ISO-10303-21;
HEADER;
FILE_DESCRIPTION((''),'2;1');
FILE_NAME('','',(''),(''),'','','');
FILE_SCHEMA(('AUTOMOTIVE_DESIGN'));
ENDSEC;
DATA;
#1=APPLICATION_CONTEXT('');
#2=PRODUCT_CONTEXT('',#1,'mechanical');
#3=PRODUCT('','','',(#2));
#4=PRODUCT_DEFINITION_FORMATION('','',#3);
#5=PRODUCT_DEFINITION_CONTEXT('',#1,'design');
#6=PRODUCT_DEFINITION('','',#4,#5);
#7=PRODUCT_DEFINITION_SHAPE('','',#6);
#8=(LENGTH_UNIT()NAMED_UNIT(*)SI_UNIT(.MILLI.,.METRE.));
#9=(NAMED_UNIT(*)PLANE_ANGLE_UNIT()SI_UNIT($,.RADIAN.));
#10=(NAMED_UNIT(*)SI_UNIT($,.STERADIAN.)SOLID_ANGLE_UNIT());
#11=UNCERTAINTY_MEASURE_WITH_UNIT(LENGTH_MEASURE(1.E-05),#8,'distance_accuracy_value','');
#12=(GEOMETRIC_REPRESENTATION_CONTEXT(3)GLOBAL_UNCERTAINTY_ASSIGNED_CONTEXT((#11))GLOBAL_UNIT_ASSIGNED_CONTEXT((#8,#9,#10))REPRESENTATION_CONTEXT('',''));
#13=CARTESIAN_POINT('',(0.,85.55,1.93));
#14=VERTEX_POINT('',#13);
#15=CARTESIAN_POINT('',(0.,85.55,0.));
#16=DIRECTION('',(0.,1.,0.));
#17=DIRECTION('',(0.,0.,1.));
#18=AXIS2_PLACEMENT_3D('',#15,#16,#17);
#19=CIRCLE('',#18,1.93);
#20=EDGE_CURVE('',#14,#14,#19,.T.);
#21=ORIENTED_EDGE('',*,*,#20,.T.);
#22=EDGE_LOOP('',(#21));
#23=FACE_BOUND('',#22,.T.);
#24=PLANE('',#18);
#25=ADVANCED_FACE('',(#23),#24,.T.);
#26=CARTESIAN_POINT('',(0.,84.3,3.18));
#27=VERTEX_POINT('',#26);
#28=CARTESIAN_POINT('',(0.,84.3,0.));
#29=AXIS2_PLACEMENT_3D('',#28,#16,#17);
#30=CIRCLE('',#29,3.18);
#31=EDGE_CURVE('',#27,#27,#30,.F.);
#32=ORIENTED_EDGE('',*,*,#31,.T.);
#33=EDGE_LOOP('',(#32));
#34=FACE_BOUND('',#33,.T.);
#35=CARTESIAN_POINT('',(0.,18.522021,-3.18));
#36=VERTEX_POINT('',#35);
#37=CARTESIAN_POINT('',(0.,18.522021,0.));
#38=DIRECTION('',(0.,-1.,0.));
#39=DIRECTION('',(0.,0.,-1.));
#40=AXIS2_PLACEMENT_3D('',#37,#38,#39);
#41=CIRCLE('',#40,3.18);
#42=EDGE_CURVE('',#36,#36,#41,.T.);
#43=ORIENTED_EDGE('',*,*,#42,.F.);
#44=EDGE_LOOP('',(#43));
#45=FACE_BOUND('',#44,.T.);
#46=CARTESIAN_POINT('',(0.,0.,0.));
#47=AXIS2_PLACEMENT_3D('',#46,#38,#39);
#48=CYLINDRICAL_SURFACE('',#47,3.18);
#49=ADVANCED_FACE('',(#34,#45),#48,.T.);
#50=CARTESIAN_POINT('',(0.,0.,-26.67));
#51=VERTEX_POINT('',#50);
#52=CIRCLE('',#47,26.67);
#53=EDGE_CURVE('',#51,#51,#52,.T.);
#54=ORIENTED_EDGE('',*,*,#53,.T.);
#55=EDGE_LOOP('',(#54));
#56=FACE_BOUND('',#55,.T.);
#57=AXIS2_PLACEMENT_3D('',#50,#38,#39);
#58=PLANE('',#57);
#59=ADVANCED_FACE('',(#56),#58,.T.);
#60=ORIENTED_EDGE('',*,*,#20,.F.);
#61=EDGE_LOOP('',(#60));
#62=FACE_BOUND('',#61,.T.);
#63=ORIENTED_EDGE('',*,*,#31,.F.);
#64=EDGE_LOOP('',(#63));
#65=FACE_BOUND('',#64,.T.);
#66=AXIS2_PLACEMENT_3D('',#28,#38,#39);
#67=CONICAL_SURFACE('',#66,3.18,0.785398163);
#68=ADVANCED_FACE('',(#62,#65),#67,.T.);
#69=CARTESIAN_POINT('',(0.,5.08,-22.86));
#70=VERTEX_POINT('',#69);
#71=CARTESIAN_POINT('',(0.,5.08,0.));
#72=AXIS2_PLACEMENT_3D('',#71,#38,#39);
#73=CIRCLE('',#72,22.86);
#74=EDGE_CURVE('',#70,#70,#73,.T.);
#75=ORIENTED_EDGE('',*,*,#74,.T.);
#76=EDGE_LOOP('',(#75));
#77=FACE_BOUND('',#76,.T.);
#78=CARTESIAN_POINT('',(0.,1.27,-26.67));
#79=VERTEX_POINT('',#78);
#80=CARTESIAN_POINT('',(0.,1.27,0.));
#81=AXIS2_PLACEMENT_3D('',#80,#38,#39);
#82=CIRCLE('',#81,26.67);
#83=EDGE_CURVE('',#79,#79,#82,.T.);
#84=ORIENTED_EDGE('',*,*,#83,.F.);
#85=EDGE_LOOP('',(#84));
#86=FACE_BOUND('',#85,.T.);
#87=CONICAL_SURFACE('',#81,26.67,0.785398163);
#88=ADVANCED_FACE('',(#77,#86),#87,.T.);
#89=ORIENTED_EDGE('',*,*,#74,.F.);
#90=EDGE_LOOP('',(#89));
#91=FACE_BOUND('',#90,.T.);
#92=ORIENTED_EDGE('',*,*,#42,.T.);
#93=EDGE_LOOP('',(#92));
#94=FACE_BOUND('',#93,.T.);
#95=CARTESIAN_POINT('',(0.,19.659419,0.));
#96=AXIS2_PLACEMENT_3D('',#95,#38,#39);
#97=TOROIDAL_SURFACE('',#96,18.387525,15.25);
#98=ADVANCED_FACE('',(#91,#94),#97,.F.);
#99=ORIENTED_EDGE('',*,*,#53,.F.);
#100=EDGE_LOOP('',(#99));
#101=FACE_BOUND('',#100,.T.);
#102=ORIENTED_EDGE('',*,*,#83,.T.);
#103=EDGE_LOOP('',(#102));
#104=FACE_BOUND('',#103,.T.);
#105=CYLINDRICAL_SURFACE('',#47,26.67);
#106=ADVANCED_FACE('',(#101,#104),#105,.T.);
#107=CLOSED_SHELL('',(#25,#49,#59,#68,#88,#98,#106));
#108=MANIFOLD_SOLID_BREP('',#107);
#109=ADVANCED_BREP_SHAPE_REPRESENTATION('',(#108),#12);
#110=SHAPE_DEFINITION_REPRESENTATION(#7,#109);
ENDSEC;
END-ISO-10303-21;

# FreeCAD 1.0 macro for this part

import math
import FreeCAD as App
import Part
import Sketcher
from FreeCAD import Vector
Q = App.Units.Quantity


def edges_at(feature, points):
    """Names of the edges that pass closest to the given points."""
    edges = feature.Shape.Edges
    near = lambda p: min(range(len(edges)), key=lambda i: edges[i].distToShape(Part.Vertex(*p))[0])
    return sorted({f"Edge{near(p) + 1}" for p in points})

doc = App.newDocument("Part")
body = doc.addObject("PartDesign::Body", "Body")

# Sketch on YZ plane
sketch1 = doc.addObject("Sketcher::SketchObject", "Sketch")
body.addObject(sketch1)
sketch1.AttachmentSupport = (doc.YZ_Plane, [""])
sketch1.MapMode = "FlatFace"
sketch1.addGeometry(Part.LineSegment(Vector(85.5, 0, 0), Vector(0, 0, 0)), False)
sketch1.addGeometry(Part.LineSegment(Vector(0, 0, 0), Vector(0, -26.7, 0)), False)
sketch1.addGeometry(Part.LineSegment(Vector(0, -26.7, 0), Vector(1.3, -26.7, 0)), False)
sketch1.addGeometry(Part.LineSegment(Vector(1.3, -26.7, 0), Vector(5.1, -22.9, 0)), False)
sketch1.addGeometry(Part.ArcOfCircle(Part.Circle(Vector(19.7, -18.4, 0), Vector(0, 0, 1), 15.2), math.radians(94), math.radians(197)), False)
sketch1.addGeometry(Part.LineSegment(Vector(18.5, -3.2, 0), Vector(85.5, -3.2, 0)), False)
sketch1.addGeometry(Part.LineSegment(Vector(85.5, -3.2, 0), Vector(85.5, 0, 0)), False)
sketch1.addConstraint(Sketcher.Constraint("Coincident", 0, 2, 1, 1))
sketch1.addConstraint(Sketcher.Constraint("Coincident", 1, 2, 2, 1))
sketch1.addConstraint(Sketcher.Constraint("Coincident", 2, 2, 3, 1))
sketch1.addConstraint(Sketcher.Constraint("Coincident", 3, 2, 4, 2))
sketch1.addConstraint(Sketcher.Constraint("Coincident", 4, 1, 5, 1))
sketch1.addConstraint(Sketcher.Constraint("Coincident", 5, 2, 6, 1))
sketch1.addConstraint(Sketcher.Constraint("Coincident", 6, 2, 0, 1))
sketch1.addConstraint(Sketcher.Constraint("Horizontal", 0))
sketch1.addConstraint(Sketcher.Constraint("Vertical", 1))
sketch1.addConstraint(Sketcher.Constraint("Horizontal", 2))
sketch1.addConstraint(Sketcher.Constraint("Horizontal", 5))
sketch1.addConstraint(Sketcher.Constraint("Vertical", 6))
sketch1.addConstraint(Sketcher.Constraint("Coincident", 0, 2, -1, 1))
sketch1.addConstraint(Sketcher.Constraint("Angle", 3, Q("45 deg")))
sketch1.addConstraint(Sketcher.Constraint("DistanceX", 2, 1, 2, 2, Q("0.05 in")))
sketch1.addConstraint(Sketcher.Constraint("DistanceY", 1, 2, 1, 1, Q("1.05 in")))
sketch1.addConstraint(Sketcher.Constraint("DistanceX", -1, 1, 3, 2, Q("0.2 in")))
sketch1.addConstraint(Sketcher.Constraint("Radius", 4, 15.25))
sketch1.addConstraint(Sketcher.Constraint("DistanceX", 0, 2, 0, 1, 85.55))
sketch1.addConstraint(Sketcher.Constraint("DistanceY", 6, 1, 6, 2, 3.18))
sketch1.addConstraint(Sketcher.Constraint("DistanceX", 5, 1, 5, 2, 67.027979))
revolution = doc.addObject("PartDesign::Revolution", "Revolution")
body.addObject(revolution)
revolution.Profile = sketch1
revolution.ReferenceAxis = (sketch1, ["H_Axis"])
revolution.Angle = 360
doc.recompute()

chamfer = doc.addObject("PartDesign::Chamfer", "Chamfer")
body.addObject(chamfer)
chamfer.Base = (revolution, edges_at(revolution, [(0, 85.55, 3.18)]))
chamfer.Size = 1.25

doc.recompute()
